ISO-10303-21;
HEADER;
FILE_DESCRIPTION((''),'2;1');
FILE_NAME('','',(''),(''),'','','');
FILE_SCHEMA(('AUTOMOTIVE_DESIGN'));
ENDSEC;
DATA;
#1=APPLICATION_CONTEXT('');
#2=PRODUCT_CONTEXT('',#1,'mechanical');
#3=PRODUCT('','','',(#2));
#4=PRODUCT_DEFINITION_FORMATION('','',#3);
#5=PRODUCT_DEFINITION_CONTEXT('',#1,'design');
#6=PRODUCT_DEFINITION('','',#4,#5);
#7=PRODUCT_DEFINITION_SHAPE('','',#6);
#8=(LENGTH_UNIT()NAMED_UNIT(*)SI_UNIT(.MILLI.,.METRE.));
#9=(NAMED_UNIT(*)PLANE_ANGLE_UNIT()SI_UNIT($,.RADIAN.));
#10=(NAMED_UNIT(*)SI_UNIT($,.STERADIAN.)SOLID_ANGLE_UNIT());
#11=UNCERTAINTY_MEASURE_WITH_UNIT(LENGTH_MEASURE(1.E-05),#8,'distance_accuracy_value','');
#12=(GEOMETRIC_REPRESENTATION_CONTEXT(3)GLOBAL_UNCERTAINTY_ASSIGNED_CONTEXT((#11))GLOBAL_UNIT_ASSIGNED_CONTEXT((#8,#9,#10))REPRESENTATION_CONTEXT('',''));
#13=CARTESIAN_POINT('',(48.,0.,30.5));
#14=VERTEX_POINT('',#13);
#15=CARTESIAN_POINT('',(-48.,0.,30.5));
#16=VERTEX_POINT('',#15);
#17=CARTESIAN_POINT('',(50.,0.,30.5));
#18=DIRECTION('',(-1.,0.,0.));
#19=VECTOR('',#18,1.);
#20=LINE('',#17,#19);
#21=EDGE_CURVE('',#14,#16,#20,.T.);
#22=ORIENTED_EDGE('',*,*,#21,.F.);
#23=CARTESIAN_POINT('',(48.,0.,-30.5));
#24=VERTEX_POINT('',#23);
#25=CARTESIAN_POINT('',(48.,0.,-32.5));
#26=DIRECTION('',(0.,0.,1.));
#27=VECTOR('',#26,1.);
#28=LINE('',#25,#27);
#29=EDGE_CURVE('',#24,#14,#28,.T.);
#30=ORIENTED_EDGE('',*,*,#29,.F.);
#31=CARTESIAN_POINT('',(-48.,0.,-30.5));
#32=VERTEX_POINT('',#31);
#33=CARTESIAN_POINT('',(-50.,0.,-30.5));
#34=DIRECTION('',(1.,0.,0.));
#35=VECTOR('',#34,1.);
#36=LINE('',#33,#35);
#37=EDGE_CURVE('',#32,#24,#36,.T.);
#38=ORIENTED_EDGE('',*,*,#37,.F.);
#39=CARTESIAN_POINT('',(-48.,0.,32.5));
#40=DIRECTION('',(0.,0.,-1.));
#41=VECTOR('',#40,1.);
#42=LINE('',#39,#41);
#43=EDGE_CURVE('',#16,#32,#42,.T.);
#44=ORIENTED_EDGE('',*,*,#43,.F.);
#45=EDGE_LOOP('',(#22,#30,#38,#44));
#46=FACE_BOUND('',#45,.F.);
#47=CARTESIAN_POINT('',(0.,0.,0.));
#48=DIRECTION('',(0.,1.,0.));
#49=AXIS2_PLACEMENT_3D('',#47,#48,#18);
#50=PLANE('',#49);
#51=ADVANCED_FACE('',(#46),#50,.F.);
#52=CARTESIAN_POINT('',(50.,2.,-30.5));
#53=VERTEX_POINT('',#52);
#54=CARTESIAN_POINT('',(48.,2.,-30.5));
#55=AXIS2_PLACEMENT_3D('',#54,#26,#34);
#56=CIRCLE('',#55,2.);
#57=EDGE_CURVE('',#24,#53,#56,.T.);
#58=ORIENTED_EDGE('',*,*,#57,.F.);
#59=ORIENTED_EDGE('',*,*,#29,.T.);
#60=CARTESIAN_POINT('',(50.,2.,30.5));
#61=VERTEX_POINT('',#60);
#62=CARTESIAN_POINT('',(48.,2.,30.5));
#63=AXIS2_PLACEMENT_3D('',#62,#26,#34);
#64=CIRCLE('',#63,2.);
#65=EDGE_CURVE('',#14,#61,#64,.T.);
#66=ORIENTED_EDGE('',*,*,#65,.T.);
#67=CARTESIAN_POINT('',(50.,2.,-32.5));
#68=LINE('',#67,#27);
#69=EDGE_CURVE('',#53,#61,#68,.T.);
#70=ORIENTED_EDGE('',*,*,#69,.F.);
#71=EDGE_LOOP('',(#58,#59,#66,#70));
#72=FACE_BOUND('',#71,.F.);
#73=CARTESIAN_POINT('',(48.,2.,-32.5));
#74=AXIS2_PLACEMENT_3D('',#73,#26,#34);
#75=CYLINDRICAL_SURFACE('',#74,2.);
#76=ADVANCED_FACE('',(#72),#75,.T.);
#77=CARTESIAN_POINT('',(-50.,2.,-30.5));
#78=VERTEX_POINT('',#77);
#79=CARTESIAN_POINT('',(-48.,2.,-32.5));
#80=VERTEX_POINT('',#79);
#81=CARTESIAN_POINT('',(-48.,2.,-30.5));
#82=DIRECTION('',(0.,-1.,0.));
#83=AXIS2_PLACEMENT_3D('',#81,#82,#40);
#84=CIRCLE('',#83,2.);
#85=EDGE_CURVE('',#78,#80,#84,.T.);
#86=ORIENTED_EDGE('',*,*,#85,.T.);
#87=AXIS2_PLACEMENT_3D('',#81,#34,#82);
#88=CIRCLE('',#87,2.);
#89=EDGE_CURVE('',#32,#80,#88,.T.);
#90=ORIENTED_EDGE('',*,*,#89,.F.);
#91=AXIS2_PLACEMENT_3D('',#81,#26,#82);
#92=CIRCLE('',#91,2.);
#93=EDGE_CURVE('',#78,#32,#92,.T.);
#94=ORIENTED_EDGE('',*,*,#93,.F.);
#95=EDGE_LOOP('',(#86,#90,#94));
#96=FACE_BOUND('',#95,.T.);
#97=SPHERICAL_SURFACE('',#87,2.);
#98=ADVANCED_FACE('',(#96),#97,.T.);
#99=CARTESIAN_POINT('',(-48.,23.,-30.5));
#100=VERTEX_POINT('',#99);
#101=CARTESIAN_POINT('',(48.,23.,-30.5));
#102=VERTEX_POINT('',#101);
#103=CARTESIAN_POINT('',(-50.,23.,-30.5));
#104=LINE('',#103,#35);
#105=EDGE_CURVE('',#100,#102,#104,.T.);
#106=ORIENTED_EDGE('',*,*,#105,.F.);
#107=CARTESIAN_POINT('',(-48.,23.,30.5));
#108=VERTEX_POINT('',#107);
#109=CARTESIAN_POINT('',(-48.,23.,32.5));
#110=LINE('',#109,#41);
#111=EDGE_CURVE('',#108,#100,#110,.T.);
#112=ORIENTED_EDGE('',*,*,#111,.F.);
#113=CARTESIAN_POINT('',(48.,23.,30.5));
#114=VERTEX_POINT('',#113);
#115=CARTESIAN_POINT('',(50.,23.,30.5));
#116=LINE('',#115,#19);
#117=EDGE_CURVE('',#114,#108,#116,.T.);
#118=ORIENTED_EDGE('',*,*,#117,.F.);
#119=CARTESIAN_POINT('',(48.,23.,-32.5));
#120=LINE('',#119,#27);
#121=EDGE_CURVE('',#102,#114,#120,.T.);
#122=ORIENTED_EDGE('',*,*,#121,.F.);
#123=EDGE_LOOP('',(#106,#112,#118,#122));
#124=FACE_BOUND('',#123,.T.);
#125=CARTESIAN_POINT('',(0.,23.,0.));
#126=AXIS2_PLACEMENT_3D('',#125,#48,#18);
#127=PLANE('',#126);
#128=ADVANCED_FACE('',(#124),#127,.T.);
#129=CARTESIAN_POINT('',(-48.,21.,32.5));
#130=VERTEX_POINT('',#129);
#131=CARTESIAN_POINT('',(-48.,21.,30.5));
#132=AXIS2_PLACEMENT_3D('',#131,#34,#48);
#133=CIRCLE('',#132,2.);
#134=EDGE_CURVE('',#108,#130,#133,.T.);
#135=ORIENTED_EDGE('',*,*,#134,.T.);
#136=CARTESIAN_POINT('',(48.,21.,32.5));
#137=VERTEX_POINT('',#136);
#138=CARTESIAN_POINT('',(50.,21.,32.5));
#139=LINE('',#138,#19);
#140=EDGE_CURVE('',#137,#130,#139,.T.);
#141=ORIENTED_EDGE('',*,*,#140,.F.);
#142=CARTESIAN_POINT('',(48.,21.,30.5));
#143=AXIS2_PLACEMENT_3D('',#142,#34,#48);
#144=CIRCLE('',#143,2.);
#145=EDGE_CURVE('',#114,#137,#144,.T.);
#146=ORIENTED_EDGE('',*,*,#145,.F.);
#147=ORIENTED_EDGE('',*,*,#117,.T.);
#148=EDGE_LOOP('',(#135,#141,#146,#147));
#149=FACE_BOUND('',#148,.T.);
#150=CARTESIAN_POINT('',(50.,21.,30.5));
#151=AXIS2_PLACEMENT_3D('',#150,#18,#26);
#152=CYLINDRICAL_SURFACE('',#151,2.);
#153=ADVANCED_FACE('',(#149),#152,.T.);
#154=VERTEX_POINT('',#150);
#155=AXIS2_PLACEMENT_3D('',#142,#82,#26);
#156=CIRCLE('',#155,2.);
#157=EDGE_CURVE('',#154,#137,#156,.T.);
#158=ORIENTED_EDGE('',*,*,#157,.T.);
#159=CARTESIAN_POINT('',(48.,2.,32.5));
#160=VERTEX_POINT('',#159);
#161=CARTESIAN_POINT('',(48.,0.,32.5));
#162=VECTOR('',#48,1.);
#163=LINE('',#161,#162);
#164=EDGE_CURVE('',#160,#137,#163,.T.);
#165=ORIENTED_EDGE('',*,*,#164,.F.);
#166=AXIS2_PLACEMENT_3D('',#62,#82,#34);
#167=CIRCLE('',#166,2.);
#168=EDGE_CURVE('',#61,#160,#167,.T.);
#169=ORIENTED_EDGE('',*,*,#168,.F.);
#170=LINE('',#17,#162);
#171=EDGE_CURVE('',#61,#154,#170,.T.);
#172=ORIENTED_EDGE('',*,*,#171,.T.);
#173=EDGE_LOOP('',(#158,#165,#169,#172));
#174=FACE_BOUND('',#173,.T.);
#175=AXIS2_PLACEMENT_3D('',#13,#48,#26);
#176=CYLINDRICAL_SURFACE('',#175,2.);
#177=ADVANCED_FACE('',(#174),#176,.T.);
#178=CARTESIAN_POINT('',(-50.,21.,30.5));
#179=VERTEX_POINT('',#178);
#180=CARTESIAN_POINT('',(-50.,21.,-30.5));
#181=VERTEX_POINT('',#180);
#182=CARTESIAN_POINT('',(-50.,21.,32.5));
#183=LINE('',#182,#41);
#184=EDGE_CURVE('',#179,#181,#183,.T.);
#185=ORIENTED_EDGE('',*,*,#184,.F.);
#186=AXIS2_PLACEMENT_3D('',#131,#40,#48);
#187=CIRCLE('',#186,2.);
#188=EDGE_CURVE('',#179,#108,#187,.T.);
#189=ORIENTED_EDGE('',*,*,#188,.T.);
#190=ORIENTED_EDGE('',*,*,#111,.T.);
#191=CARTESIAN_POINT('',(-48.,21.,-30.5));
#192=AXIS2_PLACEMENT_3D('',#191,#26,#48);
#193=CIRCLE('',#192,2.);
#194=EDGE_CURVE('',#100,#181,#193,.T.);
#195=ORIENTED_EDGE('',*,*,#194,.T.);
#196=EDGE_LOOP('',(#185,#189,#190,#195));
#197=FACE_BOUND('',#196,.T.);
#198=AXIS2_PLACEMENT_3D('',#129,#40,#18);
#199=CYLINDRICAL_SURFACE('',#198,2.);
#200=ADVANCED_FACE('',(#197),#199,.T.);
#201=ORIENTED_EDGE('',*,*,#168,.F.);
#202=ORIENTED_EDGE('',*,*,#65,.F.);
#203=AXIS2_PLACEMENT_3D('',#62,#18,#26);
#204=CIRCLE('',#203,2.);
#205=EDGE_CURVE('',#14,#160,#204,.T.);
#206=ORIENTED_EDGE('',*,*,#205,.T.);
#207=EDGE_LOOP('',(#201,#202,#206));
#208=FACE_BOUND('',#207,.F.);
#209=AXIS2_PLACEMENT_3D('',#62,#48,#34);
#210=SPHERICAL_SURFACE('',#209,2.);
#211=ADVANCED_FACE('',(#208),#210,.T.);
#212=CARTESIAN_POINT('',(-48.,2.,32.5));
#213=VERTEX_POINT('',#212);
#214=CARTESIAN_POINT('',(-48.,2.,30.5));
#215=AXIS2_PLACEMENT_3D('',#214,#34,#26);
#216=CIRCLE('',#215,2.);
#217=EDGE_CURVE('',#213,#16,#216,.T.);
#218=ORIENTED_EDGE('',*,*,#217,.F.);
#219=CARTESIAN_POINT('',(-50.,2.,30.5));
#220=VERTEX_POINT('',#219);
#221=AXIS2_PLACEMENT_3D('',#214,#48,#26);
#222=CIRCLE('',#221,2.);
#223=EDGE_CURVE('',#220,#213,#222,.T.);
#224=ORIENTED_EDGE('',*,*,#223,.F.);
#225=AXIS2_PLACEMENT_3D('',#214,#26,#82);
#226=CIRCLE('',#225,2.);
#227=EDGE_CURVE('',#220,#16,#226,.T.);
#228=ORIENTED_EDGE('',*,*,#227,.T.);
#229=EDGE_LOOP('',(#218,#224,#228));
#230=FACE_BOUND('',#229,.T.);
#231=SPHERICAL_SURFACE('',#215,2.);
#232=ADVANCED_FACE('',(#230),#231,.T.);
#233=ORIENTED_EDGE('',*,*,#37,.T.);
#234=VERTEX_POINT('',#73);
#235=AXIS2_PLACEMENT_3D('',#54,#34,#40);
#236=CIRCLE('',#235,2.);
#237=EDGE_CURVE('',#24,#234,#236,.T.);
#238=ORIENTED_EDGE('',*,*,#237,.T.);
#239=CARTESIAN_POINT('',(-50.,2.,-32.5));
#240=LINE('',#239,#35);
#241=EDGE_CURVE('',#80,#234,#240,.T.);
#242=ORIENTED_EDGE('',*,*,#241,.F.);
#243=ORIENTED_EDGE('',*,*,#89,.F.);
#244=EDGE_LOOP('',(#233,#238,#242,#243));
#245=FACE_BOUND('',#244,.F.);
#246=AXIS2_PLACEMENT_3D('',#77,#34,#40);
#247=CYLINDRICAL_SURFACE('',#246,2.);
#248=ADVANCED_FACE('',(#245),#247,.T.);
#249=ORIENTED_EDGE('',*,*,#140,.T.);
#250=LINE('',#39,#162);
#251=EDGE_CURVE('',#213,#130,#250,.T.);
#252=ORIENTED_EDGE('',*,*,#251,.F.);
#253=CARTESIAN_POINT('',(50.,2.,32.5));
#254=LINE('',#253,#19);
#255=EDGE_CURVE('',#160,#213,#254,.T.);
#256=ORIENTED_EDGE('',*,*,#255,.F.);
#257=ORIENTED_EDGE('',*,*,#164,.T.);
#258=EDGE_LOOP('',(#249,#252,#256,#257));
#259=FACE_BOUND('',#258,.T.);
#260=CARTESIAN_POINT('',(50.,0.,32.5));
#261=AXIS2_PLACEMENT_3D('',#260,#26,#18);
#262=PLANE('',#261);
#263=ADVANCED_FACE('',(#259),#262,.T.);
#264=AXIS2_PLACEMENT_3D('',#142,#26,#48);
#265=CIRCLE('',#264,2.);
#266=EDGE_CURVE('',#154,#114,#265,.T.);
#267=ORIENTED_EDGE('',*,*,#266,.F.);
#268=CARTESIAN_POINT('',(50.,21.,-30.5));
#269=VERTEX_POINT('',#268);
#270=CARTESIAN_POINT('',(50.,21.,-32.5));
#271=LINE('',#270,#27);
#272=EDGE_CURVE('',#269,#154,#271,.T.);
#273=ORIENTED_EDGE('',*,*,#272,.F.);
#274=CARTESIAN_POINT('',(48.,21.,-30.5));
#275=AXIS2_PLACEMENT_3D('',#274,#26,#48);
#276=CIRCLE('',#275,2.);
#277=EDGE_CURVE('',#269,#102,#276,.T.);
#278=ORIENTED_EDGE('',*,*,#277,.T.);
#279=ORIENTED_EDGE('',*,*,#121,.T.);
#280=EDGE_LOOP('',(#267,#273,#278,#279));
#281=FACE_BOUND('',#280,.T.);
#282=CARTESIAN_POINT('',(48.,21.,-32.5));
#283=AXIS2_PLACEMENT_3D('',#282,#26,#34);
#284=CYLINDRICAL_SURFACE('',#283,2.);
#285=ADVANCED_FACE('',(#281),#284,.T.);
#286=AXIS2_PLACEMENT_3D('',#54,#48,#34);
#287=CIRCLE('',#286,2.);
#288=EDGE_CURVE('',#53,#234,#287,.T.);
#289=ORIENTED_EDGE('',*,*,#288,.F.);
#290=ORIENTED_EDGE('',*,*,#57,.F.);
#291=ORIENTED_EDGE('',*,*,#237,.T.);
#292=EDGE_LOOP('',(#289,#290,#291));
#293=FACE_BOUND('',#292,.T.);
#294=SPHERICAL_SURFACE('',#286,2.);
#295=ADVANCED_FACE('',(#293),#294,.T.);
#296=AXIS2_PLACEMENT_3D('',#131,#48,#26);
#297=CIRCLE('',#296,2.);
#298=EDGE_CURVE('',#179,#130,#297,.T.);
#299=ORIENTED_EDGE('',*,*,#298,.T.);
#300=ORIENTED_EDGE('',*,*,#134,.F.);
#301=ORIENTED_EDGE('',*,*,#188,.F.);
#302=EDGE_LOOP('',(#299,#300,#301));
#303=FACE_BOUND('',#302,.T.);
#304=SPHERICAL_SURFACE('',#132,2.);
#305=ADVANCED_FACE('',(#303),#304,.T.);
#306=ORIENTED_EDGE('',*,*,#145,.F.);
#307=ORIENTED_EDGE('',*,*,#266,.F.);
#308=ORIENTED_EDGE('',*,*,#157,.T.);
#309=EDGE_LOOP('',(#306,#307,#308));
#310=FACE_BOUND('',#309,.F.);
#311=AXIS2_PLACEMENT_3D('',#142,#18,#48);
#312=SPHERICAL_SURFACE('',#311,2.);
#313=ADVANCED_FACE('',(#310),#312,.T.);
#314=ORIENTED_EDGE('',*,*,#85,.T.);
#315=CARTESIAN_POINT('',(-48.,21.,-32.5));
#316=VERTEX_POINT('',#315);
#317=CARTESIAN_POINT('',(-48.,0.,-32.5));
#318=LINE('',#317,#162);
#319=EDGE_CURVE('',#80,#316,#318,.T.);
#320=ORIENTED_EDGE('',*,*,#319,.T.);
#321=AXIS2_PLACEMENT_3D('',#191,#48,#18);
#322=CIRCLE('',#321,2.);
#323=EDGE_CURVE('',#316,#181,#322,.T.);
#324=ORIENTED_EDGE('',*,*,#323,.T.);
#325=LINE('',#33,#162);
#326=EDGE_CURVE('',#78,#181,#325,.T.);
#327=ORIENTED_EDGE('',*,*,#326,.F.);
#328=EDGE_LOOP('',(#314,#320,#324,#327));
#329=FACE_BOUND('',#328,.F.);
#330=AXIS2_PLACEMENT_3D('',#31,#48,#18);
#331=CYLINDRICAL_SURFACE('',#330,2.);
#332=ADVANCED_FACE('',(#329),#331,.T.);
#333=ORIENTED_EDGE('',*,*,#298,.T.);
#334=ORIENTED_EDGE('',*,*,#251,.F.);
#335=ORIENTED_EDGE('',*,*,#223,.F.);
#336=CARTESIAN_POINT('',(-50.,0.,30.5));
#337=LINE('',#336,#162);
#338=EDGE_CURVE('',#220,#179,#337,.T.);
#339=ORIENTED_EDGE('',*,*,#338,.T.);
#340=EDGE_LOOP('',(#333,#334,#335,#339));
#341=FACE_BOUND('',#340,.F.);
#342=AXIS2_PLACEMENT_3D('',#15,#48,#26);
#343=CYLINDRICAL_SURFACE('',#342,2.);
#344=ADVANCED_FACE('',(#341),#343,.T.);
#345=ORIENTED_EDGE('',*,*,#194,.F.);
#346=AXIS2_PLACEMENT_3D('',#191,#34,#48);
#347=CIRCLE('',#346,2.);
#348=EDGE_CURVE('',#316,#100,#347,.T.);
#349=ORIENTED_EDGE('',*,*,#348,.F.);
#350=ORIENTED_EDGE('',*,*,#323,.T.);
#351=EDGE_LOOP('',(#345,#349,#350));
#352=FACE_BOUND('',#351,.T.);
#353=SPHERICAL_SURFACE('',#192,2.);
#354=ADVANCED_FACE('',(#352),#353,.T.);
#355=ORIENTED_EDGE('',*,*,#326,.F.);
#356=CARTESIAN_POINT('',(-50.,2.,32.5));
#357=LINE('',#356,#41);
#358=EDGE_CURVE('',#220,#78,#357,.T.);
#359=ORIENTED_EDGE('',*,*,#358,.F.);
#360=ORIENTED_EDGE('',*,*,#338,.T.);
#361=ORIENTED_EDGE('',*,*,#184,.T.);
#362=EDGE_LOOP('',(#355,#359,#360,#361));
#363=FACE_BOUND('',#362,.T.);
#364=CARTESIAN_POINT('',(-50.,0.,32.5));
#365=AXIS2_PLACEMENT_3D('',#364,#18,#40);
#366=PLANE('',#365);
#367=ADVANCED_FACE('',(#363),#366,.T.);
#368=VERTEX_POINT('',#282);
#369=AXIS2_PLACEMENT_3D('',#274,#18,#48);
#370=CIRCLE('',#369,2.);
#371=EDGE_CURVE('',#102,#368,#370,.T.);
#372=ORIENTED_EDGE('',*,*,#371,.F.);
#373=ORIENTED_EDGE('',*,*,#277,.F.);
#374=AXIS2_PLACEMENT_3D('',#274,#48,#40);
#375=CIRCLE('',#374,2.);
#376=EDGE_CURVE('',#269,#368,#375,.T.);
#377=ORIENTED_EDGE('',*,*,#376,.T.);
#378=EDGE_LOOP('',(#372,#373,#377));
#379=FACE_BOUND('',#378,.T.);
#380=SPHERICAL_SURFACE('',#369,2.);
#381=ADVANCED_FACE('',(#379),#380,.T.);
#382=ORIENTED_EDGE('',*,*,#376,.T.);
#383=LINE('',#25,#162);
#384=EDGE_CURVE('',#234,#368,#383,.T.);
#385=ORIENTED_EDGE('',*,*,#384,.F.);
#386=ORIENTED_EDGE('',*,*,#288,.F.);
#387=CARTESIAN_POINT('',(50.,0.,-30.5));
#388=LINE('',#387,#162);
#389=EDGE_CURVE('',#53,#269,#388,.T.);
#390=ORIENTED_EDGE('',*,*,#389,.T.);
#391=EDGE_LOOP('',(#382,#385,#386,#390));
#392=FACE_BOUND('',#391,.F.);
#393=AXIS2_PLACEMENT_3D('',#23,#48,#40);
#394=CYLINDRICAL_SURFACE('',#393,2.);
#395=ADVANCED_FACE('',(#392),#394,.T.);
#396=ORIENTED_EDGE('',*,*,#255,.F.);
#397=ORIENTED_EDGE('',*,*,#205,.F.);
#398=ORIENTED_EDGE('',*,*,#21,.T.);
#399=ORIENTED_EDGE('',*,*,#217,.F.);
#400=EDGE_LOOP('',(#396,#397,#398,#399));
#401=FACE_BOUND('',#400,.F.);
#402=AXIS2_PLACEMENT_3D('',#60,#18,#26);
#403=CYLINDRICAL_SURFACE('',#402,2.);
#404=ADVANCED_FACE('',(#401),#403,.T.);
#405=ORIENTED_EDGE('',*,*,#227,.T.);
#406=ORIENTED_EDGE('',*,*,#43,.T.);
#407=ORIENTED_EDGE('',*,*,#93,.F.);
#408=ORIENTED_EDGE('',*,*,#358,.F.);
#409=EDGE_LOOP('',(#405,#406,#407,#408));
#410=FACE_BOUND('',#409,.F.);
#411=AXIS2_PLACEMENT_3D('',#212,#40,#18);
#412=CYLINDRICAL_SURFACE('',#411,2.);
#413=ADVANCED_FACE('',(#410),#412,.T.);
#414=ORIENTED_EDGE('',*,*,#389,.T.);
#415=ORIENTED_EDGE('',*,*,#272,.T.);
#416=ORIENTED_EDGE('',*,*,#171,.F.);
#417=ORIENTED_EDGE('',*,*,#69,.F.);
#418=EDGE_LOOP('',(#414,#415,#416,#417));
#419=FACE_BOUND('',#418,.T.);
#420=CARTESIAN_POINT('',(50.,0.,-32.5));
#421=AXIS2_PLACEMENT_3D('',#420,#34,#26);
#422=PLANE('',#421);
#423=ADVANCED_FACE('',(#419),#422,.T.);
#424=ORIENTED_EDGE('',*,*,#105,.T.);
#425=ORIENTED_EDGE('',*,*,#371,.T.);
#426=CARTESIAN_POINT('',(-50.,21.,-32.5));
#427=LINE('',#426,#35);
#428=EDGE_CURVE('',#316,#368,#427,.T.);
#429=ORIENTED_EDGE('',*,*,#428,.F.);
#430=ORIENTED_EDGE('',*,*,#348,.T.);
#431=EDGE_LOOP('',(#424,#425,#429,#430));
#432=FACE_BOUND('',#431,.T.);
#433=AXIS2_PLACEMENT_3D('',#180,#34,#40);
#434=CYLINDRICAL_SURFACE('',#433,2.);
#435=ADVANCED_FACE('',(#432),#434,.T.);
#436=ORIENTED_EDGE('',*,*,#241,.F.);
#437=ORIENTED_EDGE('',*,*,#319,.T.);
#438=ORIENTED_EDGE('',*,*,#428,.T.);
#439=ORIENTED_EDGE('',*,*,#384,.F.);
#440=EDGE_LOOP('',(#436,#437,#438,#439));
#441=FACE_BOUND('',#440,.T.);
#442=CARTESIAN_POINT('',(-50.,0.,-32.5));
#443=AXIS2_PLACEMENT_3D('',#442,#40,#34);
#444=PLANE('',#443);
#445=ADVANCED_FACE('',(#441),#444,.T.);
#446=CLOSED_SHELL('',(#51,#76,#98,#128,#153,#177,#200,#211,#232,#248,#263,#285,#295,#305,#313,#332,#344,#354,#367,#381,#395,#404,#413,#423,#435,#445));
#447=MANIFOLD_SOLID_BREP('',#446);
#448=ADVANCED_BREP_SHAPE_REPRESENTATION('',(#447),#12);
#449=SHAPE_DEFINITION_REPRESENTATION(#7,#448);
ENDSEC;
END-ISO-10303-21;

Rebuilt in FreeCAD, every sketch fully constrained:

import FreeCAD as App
import Part
import Sketcher
Q = App.Units.Quantity


def add_polygon(sketch, points):
    """Adds a closed chain of lines whose ends are joined by coincident constraints."""
    first, n = sketch.GeometryCount, len(points)
    for a, b in zip(points, points[1:] + points[:1]):
        sketch.addGeometry(Part.LineSegment(App.Vector(*a, 0), App.Vector(*b, 0)), False)
    for i in range(n):
        sketch.addConstraint(Sketcher.Constraint("Coincident", first + i, 2, first + (i + 1) % n, 1))

doc = App.newDocument("Part")
body = doc.addObject("PartDesign::Body", "Body")

# Sketch on XZ plane
sketch1 = body.newObject("Sketcher::SketchObject", "Sketch")
sketch1.AttachmentSupport = (doc.getObject("XZ_Plane"), [""])
sketch1.MapMode = "FlatFace"
add_polygon(sketch1, [(-50, 32.5), (50, 32.5), (50, -32.5), (-50, -32.5)])  # lines 0-3
sketch1.addConstraint([
    Sketcher.Constraint("Horizontal", 0),
    Sketcher.Constraint("Vertical", 1),
    Sketcher.Constraint("Horizontal", 2),
    Sketcher.Constraint("Vertical", 3),
    Sketcher.Constraint("Symmetric", 0, 2, 2, 2, -1, 1),
    Sketcher.Constraint("DistanceX", 0, 1, 0, 2, Q("100 mm")),
    Sketcher.Constraint("DistanceY", 1, 2, 1, 1, Q("65 mm")),
])
pad1 = body.newObject("PartDesign::Pad", "Pad")
pad1.Profile = sketch1
pad1.Length = 23
pad1.Reversed = True
doc.recompute()

fillet = body.newObject("PartDesign::Fillet", "Fillet")
fillet.Base = (pad1, ["Edge1"])
fillet.UseAllEdges = True
fillet.Radius = 2

doc.recompute()
